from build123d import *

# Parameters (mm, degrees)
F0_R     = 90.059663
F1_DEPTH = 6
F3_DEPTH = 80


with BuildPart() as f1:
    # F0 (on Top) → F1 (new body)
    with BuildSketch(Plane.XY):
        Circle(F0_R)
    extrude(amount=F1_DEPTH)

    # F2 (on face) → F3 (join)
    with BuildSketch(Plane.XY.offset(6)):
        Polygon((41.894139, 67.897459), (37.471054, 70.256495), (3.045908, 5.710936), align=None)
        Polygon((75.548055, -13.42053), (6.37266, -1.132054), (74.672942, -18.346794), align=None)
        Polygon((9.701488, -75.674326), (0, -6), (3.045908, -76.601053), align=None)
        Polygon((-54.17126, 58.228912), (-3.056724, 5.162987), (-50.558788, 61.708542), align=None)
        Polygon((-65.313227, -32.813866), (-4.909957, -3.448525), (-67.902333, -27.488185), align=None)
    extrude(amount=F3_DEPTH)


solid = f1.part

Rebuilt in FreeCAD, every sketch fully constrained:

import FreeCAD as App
import Part
import Sketcher


def add_polygon(sketch, points):
    """Adds a closed chain of lines whose ends are joined by coincident constraints."""
    first, n = sketch.GeometryCount, len(points)
    for a, b in zip(points, points[1:] + points[:1]):
        sketch.addGeometry(Part.LineSegment(App.Vector(*a, 0), App.Vector(*b, 0)), False)
    for i in range(n):
        sketch.addConstraint(Sketcher.Constraint("Coincident", first + i, 2, first + (i + 1) % n, 1))

doc = App.newDocument("Part")
body = doc.addObject("PartDesign::Body", "Body")

# Sketch on XY plane
sketch1 = doc.addObject("Sketcher::SketchObject", "Sketch")
body.addObject(sketch1)
sketch1.AttachmentSupport = (doc.XY_Plane, [""])
sketch1.MapMode = "FlatFace"
sketch1.addGeometry(Part.Circle(App.Vector(0, 0, 0), App.Vector(0, 0, 1), 90), False)
sketch1.addConstraint(Sketcher.Constraint("Coincident", 0, 3, -1, 1))
sketch1.addConstraint(Sketcher.Constraint("Diameter", 0, 180.119326))
pad1 = doc.addObject("PartDesign::Pad", "Pad")
body.addObject(pad1)
pad1.Profile = sketch1
pad1.Length = 6

# Sketch on XY plane
sketch2 = doc.addObject("Sketcher::SketchObject", "Sketch001")
body.addObject(sketch2)
sketch2.AttachmentSupport = (doc.XY_Plane, [""])
sketch2.MapMode = "FlatFace"
sketch2.AttachmentOffset = App.Placement(App.Vector(0, 0, 6), App.Rotation())
add_polygon(sketch2, [(42, 68), (37, 70), (3, 6)])  # lines 0-2
add_polygon(sketch2, [(76, -13), (6, -1), (75, -18)])  # lines 3-5
add_polygon(sketch2, [(10, -76), (0, -6), (3, -77)])  # lines 6-8
add_polygon(sketch2, [(-54, 58), (-3, 5), (-51, 62)])  # lines 9-11
add_polygon(sketch2, [(-65, -33), (-5, -3), (-68, -27)])  # lines 12-14
sketch2.addConstraint(Sketcher.Constraint("PointOnObject", 6, 2, -2))
sketch2.addConstraint(Sketcher.Constraint("Perpendicular", 0, 1))
sketch2.addConstraint(Sketcher.Constraint("Perpendicular", 3, 5))
sketch2.addConstraint(Sketcher.Constraint("Perpendicular", 6, 8))
sketch2.addConstraint(Sketcher.Constraint("Perpendicular", 9, 11))
sketch2.addConstraint(Sketcher.Constraint("Perpendicular", 12, 14))
sketch2.addConstraint(Sketcher.Constraint("Vertical", 1, 2, 7, 2))
sketch2.addConstraint(Sketcher.Constraint("DistanceY", 6, 2, -1, 1, 6.0))
sketch2.addConstraint(Sketcher.Constraint("DistanceX", 0, 2, 5, 2, 38.077001))
sketch2.addConstraint(Sketcher.Constraint("DistanceY", 7, 2, 3, 2, 75.468999))
sketch2.addConstraint(Sketcher.Constraint("Distance", 2, 73.323589))
sketch2.addConstraint(Sketcher.Constraint("Distance", 5, 5.003389))
sketch2.addConstraint(Sketcher.Constraint("Distance", 8, 6.719789))
sketch2.addConstraint(Sketcher.Constraint("Distance", 10, 73.850158))
sketch2.addConstraint(Sketcher.Constraint("Distance", 13, 67.423621))
sketch2.addConstraint(Sketcher.Constraint("DistanceX", -1, 1, 2, 2, 41.894139))
sketch2.addConstraint(Sketcher.Constraint("DistanceY", -1, 1, 2, 2, 67.897459))
sketch2.addConstraint(Sketcher.Constraint("DistanceX", -1, 1, 3, 2, 6.37266))
sketch2.addConstraint(Sketcher.Constraint("DistanceY", 5, 2, -1, 1, 13.42053))
sketch2.addConstraint(Sketcher.Constraint("DistanceX", 11, 2, -1, 1, 54.17126))
sketch2.addConstraint(Sketcher.Constraint("DistanceY", 1, 2, 0, 2, 64.545559))
sketch2.addConstraint(Sketcher.Constraint("DistanceX", 1, 2, 2, 2, 38.848231))
sketch2.addConstraint(Sketcher.Constraint("DistanceY", 3, 2, 1, 2, 6.84299))
sketch2.addConstraint(Sketcher.Constraint("DistanceX", 9, 2, 1, 2, 6.102632))
sketch2.addConstraint(Sketcher.Constraint("DistanceY", 9, 2, 1, 2, 0.547949))
sketch2.addConstraint(Sketcher.Constraint("DistanceY", 6, 2, 10, 2, 67.708542))
sketch2.addConstraint(Sketcher.Constraint("DistanceY", 12, 2, 3, 2, 2.316471))
sketch2.addConstraint(Sketcher.Constraint("DistanceY", 13, 2, 12, 2, 24.03966))
sketch2.addConstraint(Sketcher.Constraint("DistanceX", 13, 2, 9, 2, 64.845609))
sketch2.addConstraint(Sketcher.Constraint("DistanceY", 14, 2, 13, 2, 5.325681))
pad2 = doc.addObject("PartDesign::Pad", "Pad001")
body.addObject(pad2)
pad2.Profile = sketch2
pad2.Length = 80

doc.recompute()
